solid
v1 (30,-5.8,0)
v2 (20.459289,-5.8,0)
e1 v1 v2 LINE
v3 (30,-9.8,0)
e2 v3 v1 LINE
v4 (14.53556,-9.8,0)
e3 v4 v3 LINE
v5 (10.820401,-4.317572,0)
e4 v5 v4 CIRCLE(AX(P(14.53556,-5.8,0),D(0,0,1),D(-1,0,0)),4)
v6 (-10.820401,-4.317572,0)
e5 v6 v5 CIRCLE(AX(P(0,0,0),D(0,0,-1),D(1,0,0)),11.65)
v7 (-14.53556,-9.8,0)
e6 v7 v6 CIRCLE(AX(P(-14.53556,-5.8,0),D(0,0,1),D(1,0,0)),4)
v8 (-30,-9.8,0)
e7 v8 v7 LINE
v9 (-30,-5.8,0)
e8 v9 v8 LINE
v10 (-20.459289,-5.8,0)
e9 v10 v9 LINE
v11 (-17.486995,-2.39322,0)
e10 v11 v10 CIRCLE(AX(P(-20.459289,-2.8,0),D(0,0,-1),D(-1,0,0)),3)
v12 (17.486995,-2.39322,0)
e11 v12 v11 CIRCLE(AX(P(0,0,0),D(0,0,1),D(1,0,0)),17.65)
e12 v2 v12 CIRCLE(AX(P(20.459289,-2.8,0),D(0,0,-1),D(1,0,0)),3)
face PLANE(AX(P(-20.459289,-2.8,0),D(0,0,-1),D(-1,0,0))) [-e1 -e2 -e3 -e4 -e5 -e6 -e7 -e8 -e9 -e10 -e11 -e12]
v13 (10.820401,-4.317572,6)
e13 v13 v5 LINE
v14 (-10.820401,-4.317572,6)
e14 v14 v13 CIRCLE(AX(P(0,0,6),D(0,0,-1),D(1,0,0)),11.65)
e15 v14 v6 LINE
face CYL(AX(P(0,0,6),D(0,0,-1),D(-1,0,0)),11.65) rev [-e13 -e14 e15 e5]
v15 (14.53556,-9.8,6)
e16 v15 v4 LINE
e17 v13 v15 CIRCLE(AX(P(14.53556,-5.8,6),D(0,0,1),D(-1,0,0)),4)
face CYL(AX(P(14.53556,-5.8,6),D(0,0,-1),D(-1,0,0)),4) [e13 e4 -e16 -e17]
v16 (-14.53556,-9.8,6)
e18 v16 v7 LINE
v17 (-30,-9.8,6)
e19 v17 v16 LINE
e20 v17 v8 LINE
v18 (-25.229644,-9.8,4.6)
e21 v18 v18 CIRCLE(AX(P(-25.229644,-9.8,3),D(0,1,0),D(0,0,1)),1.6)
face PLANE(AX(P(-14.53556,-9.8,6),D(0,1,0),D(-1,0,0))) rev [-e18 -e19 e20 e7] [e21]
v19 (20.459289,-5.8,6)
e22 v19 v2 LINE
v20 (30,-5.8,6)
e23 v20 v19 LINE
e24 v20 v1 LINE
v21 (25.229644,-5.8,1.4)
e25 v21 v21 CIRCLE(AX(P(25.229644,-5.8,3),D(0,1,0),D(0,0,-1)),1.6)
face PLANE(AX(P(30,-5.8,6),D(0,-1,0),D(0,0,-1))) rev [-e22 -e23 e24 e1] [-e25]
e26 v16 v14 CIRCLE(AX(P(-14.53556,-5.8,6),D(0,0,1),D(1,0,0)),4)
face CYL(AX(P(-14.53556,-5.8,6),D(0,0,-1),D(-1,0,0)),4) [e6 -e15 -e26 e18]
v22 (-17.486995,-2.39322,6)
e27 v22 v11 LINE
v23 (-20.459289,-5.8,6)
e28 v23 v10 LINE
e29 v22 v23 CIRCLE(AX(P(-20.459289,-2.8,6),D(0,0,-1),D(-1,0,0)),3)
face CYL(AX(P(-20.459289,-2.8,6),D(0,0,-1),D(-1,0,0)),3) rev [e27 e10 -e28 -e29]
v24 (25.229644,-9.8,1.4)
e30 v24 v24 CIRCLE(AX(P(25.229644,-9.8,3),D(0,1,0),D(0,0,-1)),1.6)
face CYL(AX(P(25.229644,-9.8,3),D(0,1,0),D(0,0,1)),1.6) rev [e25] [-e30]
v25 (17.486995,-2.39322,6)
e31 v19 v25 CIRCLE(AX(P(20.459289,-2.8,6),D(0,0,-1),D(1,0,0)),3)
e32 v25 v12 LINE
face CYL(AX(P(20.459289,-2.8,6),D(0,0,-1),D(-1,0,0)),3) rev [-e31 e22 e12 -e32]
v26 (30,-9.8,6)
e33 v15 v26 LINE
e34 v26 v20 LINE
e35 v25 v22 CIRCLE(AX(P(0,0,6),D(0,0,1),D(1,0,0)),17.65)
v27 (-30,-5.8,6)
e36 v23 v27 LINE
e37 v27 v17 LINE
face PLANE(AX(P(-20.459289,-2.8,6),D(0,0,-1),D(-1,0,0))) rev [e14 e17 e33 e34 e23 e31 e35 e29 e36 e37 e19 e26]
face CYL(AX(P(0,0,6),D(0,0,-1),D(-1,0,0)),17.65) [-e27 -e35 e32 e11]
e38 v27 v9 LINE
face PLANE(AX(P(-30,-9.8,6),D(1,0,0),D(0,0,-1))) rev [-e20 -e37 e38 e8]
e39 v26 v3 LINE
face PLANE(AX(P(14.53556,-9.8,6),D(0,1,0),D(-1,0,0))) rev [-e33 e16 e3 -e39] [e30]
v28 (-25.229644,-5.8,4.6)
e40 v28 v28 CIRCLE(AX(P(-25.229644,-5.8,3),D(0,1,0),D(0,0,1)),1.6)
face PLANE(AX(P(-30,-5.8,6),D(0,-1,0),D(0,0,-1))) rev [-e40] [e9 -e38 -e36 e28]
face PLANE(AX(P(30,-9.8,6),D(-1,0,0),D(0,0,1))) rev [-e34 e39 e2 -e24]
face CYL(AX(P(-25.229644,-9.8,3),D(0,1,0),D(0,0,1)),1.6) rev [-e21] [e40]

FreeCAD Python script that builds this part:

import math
import FreeCAD as App
import Part
import Sketcher
from FreeCAD import Vector

doc = App.newDocument("Part")
body = doc.addObject("PartDesign::Body", "Body")

sketch1 = doc.addObject("Sketcher::SketchObject", "Sketch")
body.addObject(sketch1)
sketch1.AttachmentSupport = (doc.XY_Plane, [""])
sketch1.MapMode = "FlatFace"
sketch1.addGeometry(Part.LineSegment(Vector(-30, -9.8, 0), Vector(-14.5, -9.8, 0)), False)
sketch1.addGeometry(Part.ArcOfCircle(Part.Circle(Vector(-14.5, -5.8, 0), Vector(0, 0, 1), 4), math.radians(-90), math.radians(22)), False)
sketch1.addGeometry(Part.ArcOfCircle(Part.Circle(Vector(0, 0, 0), Vector(0, 0, 1), 11.7), math.radians(-22), math.radians(202)), False)
sketch1.addGeometry(Part.ArcOfCircle(Part.Circle(Vector(14.5, -5.8, 0), Vector(0, 0, 1), 4), math.radians(158), math.radians(270)), False)
sketch1.addGeometry(Part.LineSegment(Vector(14.5, -9.8, 0), Vector(30, -9.8, 0)), False)
sketch1.addGeometry(Part.LineSegment(Vector(30, -9.8, 0), Vector(30, -5.8, 0)), False)
sketch1.addGeometry(Part.LineSegment(Vector(30, -5.8, 0), Vector(20.5, -5.8, 0)), False)
sketch1.addGeometry(Part.ArcOfCircle(Part.Circle(Vector(20.5, -2.8, 0), Vector(0, 0, 1), 3), math.radians(172), math.radians(270)), False)
sketch1.addGeometry(Part.ArcOfCircle(Part.Circle(Vector(0, 0, 0), Vector(0, 0, 1), 17.6), math.radians(-8), math.radians(188)), False)
sketch1.addGeometry(Part.ArcOfCircle(Part.Circle(Vector(-20.5, -2.8, 0), Vector(0, 0, 1), 3), math.radians(-90), math.radians(8)), False)
sketch1.addGeometry(Part.LineSegment(Vector(-20.5, -5.8, 0), Vector(-30, -5.8, 0)), False)
sketch1.addGeometry(Part.LineSegment(Vector(-30, -5.8, 0), Vector(-30, -9.8, 0)), False)
sketch1.addConstraint(Sketcher.Constraint("Tangent", 0, 2, 1, 1))
sketch1.addConstraint(Sketcher.Constraint("Tangent", 1, 2, 2, 2))
sketch1.addConstraint(Sketcher.Constraint("Tangent", 2, 1, 3, 1))
sketch1.addConstraint(Sketcher.Constraint("Tangent", 3, 2, 4, 1))
sketch1.addConstraint(Sketcher.Constraint("Coincident", 4, 2, 5, 1))
sketch1.addConstraint(Sketcher.Constraint("Coincident", 5, 2, 6, 1))
sketch1.addConstraint(Sketcher.Constraint("Tangent", 6, 2, 7, 2))
sketch1.addConstraint(Sketcher.Constraint("Tangent", 7, 1, 8, 1))
sketch1.addConstraint(Sketcher.Constraint("Tangent", 8, 2, 9, 2))
sketch1.addConstraint(Sketcher.Constraint("Tangent", 9, 1, 10, 1))
sketch1.addConstraint(Sketcher.Constraint("Coincident", 10, 2, 11, 1))
sketch1.addConstraint(Sketcher.Constraint("Coincident", 11, 2, 0, 1))
sketch1.addConstraint(Sketcher.Constraint("Horizontal", 0))
sketch1.addConstraint(Sketcher.Constraint("Horizontal", 4))
sketch1.addConstraint(Sketcher.Constraint("Vertical", 5))
sketch1.addConstraint(Sketcher.Constraint("Horizontal", 6))
sketch1.addConstraint(Sketcher.Constraint("Horizontal", 10))
sketch1.addConstraint(Sketcher.Constraint("Vertical", 11))
sketch1.addConstraint(Sketcher.Constraint("Coincident", 2, 3, -1, 1))
sketch1.addConstraint(Sketcher.Constraint("Coincident", 8, 3, -1, 1))
sketch1.addConstraint(Sketcher.Constraint("Equal", 1, 3))
sketch1.addConstraint(Sketcher.Constraint("Equal", 7, 9))
sketch1.addConstraint(Sketcher.Constraint("Symmetric", 5, 2, 10, 2, -2))
sketch1.addConstraint(Sketcher.Constraint("Horizontal", 1, 3, 3, 3))
sketch1.addConstraint(Sketcher.Constraint("Horizontal", 3, 3, 5, 2))
sketch1.addConstraint(Sketcher.Constraint("Radius", 1, 4.0))
sketch1.addConstraint(Sketcher.Constraint("Radius", 7, 3.0))
sketch1.addConstraint(Sketcher.Constraint("Radius", 2, 11.65))
sketch1.addConstraint(Sketcher.Constraint("Radius", 8, 17.65))
sketch1.addConstraint(Sketcher.Constraint("DistanceX", -1, 1, 4, 2, 30.0))
sketch1.addConstraint(Sketcher.Constraint("DistanceY", 1, 3, -1, 1, 5.8))
pad1 = doc.addObject("PartDesign::Pad", "Pad")
body.addObject(pad1)
pad1.Profile = sketch1
pad1.Length = 6

sketch2 = doc.addObject("Sketcher::SketchObject", "Sketch001")
body.addObject(sketch2)
sketch2.AttachmentSupport = (doc.XZ_Plane, [""])
sketch2.MapMode = "FlatFace"
sketch2.AttachmentOffset = App.Placement(Vector(0, 0, 5.8), App.Rotation())
sketch2.addGeometry(Part.Circle(Vector(-25.2, 3, 0), Vector(0, 0, 1), 1.6), False)
sketch2.addGeometry(Part.Circle(Vector(25.2, 3, 0), Vector(0, 0, 1), 1.6), False)
sketch2.addConstraint(Sketcher.Constraint("Equal", 0, 1))
sketch2.addConstraint(Sketcher.Constraint("Symmetric", 0, 3, 1, 3, -2))
sketch2.addConstraint(Sketcher.Constraint("Diameter", 0, 3.2))
sketch2.addConstraint(Sketcher.Constraint("DistanceY", -1, 1, 0, 3, 3.0))
sketch2.addConstraint(Sketcher.Constraint("DistanceX", 0, 3, 1, 3, 50.459289))
pocket1 = doc.addObject("PartDesign::Pocket", "Pocket")
body.addObject(pocket1)
pocket1.Profile = sketch2
pocket1.Type = "ThroughAll"
pocket1.Reversed = True

doc.recompute()
